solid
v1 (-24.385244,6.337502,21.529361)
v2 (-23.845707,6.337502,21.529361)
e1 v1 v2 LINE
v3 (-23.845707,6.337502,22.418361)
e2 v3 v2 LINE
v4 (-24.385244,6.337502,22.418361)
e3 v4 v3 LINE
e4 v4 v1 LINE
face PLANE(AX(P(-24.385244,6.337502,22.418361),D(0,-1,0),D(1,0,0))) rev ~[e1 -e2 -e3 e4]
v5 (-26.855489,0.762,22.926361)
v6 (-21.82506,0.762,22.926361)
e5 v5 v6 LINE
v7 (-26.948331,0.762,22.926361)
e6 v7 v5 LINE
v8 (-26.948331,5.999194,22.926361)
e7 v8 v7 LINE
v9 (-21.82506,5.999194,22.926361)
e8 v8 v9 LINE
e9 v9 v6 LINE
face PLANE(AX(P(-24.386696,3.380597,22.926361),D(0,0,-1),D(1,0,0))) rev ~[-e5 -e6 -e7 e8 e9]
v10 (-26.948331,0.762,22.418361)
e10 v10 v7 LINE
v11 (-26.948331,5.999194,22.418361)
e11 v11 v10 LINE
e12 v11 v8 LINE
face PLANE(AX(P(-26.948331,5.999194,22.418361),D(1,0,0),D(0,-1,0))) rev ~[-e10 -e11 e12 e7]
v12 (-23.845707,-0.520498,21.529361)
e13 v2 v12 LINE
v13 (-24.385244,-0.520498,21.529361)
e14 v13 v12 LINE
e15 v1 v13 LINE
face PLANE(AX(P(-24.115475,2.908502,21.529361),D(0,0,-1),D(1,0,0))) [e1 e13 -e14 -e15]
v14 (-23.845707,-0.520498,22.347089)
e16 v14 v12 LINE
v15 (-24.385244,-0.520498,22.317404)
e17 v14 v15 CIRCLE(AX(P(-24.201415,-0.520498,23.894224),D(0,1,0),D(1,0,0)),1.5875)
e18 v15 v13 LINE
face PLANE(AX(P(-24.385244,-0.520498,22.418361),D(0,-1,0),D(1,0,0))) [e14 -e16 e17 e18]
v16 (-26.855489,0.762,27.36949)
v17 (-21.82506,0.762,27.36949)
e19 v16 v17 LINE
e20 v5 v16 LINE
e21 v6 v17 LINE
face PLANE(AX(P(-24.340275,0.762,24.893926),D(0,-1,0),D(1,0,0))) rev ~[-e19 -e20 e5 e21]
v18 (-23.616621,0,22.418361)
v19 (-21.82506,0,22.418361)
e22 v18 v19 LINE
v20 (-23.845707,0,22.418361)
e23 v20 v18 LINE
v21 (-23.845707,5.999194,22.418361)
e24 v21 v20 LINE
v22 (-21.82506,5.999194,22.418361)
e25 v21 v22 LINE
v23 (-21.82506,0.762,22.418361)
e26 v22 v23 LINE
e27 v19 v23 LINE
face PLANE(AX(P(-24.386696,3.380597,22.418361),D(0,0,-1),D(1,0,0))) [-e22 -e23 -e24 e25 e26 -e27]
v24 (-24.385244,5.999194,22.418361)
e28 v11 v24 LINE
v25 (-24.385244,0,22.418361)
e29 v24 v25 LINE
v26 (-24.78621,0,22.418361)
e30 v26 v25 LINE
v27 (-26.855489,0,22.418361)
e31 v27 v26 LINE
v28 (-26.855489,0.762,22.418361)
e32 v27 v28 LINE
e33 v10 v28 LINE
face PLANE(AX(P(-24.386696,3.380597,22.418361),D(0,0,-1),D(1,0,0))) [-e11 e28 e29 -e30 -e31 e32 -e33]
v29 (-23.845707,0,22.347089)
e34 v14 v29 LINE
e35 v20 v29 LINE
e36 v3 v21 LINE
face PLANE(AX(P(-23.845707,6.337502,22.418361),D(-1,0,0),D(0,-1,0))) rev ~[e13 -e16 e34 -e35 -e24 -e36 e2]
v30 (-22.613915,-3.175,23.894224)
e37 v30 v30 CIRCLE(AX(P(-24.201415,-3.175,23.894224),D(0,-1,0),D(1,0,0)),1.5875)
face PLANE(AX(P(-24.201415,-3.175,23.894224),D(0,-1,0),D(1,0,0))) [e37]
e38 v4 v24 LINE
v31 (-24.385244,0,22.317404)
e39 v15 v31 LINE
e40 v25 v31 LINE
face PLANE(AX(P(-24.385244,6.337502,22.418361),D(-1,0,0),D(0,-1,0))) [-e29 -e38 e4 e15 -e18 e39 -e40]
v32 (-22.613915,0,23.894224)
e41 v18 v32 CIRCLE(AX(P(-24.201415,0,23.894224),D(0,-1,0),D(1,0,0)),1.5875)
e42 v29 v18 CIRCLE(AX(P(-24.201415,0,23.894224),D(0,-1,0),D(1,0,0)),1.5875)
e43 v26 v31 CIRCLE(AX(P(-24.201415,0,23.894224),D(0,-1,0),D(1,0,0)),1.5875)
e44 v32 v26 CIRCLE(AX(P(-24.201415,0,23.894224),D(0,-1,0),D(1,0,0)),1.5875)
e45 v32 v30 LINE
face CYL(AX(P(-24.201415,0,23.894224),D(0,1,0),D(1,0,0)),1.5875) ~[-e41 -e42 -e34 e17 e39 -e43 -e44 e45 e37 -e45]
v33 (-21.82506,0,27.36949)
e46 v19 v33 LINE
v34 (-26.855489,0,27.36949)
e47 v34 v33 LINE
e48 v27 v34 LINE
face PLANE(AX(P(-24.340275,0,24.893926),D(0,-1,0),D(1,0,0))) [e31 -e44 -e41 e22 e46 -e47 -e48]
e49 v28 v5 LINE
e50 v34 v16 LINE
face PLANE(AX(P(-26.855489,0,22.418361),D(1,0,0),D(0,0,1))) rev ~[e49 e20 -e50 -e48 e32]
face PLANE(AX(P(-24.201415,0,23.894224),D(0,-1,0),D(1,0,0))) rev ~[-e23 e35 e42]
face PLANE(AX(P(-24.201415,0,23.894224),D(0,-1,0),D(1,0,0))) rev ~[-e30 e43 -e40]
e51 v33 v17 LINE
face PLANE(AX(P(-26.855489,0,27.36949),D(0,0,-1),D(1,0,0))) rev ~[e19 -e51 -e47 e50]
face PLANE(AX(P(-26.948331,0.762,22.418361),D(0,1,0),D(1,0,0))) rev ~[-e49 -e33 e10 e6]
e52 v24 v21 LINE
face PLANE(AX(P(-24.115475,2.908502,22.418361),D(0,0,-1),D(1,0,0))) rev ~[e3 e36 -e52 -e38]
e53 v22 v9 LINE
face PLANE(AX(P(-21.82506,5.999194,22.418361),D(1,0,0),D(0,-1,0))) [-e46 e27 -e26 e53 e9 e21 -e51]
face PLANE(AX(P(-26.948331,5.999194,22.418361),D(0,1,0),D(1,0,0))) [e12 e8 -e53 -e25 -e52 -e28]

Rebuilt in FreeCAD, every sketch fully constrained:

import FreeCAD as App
import Part
import Sketcher
from FreeCAD import Vector
Q = App.Units.Quantity

doc = App.newDocument("Part")
params = doc.addObject("Spreadsheet::Sheet", "Params")
for row, (alias, value) in enumerate([
    ("sketch1_diameter", "0.125 in"),
    ("pad1_length", "0.125 in"),
    ("pad2_length", "0.03 in"),
    ("pad3_length", "0.02 in"),
    ("sketch4_height", "0.27 in"),
    ("pad4_length", "0.035 in"),
], start=1):
    params.set(f"A{row}", alias)
    params.set(f"B{row}", "=" + value)
    params.setAlias(f"B{row}", alias)

body = doc.addObject("PartDesign::Body", "Body")

# Sketch on XZ plane
sketch1 = body.newObject("Sketcher::SketchObject", "Sketch")
sketch1.AttachmentSupport = (doc.getObject("XZ_Plane"), [""])
sketch1.MapMode = "FlatFace"
sketch1.addGeometry(Part.Circle(Vector(-24.2, 23.9, 0), Vector(0, 0, 1), 1.6), False)
sketch1.addConstraint([
    Sketcher.Constraint("Diameter", 0, Q("0.125 in")),
    Sketcher.Constraint("DistanceX", 0, 3, -1, 1, Q("24.201415 mm")),
    Sketcher.Constraint("DistanceY", -1, 1, 0, 3, Q("23.894224 mm")),
])
sketch1.setExpression("Constraints[0]", "Params.sketch1_diameter")
pad1 = body.newObject("PartDesign::Pad", "Pad")
pad1.Profile = sketch1
pad1.setExpression("Length", "Params.pad1_length")

# Sketch on XZ plane
sketch2 = body.newObject("Sketcher::SketchObject", "Sketch001")
sketch2.AttachmentSupport = (doc.getObject("XZ_Plane"), [""])
sketch2.MapMode = "FlatFace"
sketch2.addGeometry([
    Part.LineSegment(Vector(-26.9, 27.4, 0), Vector(-26.9, 22.4, 0)),
    Part.LineSegment(Vector(-26.9, 22.4, 0), Vector(-21.8, 22.4, 0)),
    Part.LineSegment(Vector(-21.8, 22.4, 0), Vector(-21.8, 27.4, 0)),
    Part.LineSegment(Vector(-21.8, 27.4, 0), Vector(-26.9, 27.4, 0)),
], False)
sketch2.addConstraint([
    Sketcher.Constraint("Coincident", 0, 2, 1, 1),
    Sketcher.Constraint("Coincident", 1, 2, 2, 1),
    Sketcher.Constraint("Coincident", 2, 2, 3, 1),
    Sketcher.Constraint("Coincident", 3, 2, 0, 1),
    Sketcher.Constraint("Vertical", 0),
    Sketcher.Constraint("Horizontal", 1),
    Sketcher.Constraint("Vertical", 2),
    Sketcher.Constraint("Horizontal", 3),
    Sketcher.Constraint("DistanceX", 1, 1, 1, 2, Q("5.030429 mm")),
    Sketcher.Constraint("DistanceY", 0, 2, 0, 1, Q("4.951129 mm")),
    Sketcher.Constraint("DistanceX", 0, 2, -1, 1, Q("26.855489 mm")),
    Sketcher.Constraint("DistanceY", -1, 1, 0, 2, Q("22.418361 mm")),
])
pad2 = body.newObject("PartDesign::Pad", "Pad001")
pad2.Profile = sketch2
pad2.setExpression("Length", "Params.pad2_length")
pad2.Reversed = True

# Sketch on XY plane
sketch3 = body.newObject("Sketcher::SketchObject", "Sketch002")
sketch3.AttachmentSupport = (doc.getObject("XY_Plane"), [""])
sketch3.MapMode = "FlatFace"
sketch3.AttachmentOffset = App.Placement(Vector(0, 0, 22.418361), App.Rotation())
sketch3.addGeometry([
    Part.LineSegment(Vector(-27, 1, 0), Vector(-27, 6, 0)),
    Part.LineSegment(Vector(-27, 6, 0), Vector(-22, 6, 0)),
    Part.LineSegment(Vector(-22, 6, 0), Vector(-22, 1, 0)),
    Part.LineSegment(Vector(-22, 1, 0), Vector(-27, 1, 0)),
], False)
sketch3.addConstraint([
    Sketcher.Constraint("Coincident", 0, 2, 1, 1),
    Sketcher.Constraint("Coincident", 1, 2, 2, 1),
    Sketcher.Constraint("Coincident", 2, 2, 3, 1),
    Sketcher.Constraint("Coincident", 3, 2, 0, 1),
    Sketcher.Constraint("Vertical", 0),
    Sketcher.Constraint("Horizontal", 1),
    Sketcher.Constraint("Vertical", 2),
    Sketcher.Constraint("Horizontal", 3),
    Sketcher.Constraint("DistanceY", -1, 1, 2, 2, Q("0.03 in")),
    Sketcher.Constraint("DistanceX", 1, 1, 1, 2, Q("5.123271 mm")),
    Sketcher.Constraint("DistanceY", 0, 1, 0, 2, Q("5.237194 mm")),
    Sketcher.Constraint("DistanceX", 0, 2, -1, 1, Q("26.948331 mm")),
])
pad3 = body.newObject("PartDesign::Pad", "Pad002")
pad3.Profile = sketch3
pad3.setExpression("Length", "Params.pad3_length")

# Sketch on XY plane
sketch4 = body.newObject("Sketcher::SketchObject", "Sketch003")
sketch4.AttachmentSupport = (doc.getObject("XY_Plane"), [""])
sketch4.MapMode = "FlatFace"
sketch4.AttachmentOffset = App.Placement(Vector(0, 0, 22.418361), App.Rotation())
sketch4.addGeometry([
    Part.LineSegment(Vector(-24.4, -0.5, 0), Vector(-24.4, 6.3, 0)),
    Part.LineSegment(Vector(-24.4, 6.3, 0), Vector(-23.8, 6.3, 0)),
    Part.LineSegment(Vector(-23.8, 6.3, 0), Vector(-23.8, -0.5, 0)),
    Part.LineSegment(Vector(-23.8, -0.5, 0), Vector(-24.4, -0.5, 0)),
], False)
sketch4.addConstraint([
    Sketcher.Constraint("Coincident", 0, 2, 1, 1),
    Sketcher.Constraint("Coincident", 1, 2, 2, 1),
    Sketcher.Constraint("Coincident", 2, 2, 3, 1),
    Sketcher.Constraint("Coincident", 3, 2, 0, 1),
    Sketcher.Constraint("Vertical", 0),
    Sketcher.Constraint("Horizontal", 1),
    Sketcher.Constraint("Vertical", 2),
    Sketcher.Constraint("Horizontal", 3),
    Sketcher.Constraint("DistanceY", 0, 1, 0, 2, Q("0.27 in")),
    Sketcher.Constraint("DistanceY", -1, 1, 0, 2, Q("6.337502 mm")),
    Sketcher.Constraint("DistanceX", 1, 1, 1, 2, Q("0.539537 mm")),
    Sketcher.Constraint("DistanceX", 0, 2, -1, 1, Q("24.385244 mm")),
])
sketch4.setExpression("Constraints[8]", "Params.sketch4_height")
pad4 = body.newObject("PartDesign::Pad", "Pad003")
pad4.Profile = sketch4
pad4.setExpression("Length", "Params.pad4_length")
pad4.Reversed = True

doc.recompute()
